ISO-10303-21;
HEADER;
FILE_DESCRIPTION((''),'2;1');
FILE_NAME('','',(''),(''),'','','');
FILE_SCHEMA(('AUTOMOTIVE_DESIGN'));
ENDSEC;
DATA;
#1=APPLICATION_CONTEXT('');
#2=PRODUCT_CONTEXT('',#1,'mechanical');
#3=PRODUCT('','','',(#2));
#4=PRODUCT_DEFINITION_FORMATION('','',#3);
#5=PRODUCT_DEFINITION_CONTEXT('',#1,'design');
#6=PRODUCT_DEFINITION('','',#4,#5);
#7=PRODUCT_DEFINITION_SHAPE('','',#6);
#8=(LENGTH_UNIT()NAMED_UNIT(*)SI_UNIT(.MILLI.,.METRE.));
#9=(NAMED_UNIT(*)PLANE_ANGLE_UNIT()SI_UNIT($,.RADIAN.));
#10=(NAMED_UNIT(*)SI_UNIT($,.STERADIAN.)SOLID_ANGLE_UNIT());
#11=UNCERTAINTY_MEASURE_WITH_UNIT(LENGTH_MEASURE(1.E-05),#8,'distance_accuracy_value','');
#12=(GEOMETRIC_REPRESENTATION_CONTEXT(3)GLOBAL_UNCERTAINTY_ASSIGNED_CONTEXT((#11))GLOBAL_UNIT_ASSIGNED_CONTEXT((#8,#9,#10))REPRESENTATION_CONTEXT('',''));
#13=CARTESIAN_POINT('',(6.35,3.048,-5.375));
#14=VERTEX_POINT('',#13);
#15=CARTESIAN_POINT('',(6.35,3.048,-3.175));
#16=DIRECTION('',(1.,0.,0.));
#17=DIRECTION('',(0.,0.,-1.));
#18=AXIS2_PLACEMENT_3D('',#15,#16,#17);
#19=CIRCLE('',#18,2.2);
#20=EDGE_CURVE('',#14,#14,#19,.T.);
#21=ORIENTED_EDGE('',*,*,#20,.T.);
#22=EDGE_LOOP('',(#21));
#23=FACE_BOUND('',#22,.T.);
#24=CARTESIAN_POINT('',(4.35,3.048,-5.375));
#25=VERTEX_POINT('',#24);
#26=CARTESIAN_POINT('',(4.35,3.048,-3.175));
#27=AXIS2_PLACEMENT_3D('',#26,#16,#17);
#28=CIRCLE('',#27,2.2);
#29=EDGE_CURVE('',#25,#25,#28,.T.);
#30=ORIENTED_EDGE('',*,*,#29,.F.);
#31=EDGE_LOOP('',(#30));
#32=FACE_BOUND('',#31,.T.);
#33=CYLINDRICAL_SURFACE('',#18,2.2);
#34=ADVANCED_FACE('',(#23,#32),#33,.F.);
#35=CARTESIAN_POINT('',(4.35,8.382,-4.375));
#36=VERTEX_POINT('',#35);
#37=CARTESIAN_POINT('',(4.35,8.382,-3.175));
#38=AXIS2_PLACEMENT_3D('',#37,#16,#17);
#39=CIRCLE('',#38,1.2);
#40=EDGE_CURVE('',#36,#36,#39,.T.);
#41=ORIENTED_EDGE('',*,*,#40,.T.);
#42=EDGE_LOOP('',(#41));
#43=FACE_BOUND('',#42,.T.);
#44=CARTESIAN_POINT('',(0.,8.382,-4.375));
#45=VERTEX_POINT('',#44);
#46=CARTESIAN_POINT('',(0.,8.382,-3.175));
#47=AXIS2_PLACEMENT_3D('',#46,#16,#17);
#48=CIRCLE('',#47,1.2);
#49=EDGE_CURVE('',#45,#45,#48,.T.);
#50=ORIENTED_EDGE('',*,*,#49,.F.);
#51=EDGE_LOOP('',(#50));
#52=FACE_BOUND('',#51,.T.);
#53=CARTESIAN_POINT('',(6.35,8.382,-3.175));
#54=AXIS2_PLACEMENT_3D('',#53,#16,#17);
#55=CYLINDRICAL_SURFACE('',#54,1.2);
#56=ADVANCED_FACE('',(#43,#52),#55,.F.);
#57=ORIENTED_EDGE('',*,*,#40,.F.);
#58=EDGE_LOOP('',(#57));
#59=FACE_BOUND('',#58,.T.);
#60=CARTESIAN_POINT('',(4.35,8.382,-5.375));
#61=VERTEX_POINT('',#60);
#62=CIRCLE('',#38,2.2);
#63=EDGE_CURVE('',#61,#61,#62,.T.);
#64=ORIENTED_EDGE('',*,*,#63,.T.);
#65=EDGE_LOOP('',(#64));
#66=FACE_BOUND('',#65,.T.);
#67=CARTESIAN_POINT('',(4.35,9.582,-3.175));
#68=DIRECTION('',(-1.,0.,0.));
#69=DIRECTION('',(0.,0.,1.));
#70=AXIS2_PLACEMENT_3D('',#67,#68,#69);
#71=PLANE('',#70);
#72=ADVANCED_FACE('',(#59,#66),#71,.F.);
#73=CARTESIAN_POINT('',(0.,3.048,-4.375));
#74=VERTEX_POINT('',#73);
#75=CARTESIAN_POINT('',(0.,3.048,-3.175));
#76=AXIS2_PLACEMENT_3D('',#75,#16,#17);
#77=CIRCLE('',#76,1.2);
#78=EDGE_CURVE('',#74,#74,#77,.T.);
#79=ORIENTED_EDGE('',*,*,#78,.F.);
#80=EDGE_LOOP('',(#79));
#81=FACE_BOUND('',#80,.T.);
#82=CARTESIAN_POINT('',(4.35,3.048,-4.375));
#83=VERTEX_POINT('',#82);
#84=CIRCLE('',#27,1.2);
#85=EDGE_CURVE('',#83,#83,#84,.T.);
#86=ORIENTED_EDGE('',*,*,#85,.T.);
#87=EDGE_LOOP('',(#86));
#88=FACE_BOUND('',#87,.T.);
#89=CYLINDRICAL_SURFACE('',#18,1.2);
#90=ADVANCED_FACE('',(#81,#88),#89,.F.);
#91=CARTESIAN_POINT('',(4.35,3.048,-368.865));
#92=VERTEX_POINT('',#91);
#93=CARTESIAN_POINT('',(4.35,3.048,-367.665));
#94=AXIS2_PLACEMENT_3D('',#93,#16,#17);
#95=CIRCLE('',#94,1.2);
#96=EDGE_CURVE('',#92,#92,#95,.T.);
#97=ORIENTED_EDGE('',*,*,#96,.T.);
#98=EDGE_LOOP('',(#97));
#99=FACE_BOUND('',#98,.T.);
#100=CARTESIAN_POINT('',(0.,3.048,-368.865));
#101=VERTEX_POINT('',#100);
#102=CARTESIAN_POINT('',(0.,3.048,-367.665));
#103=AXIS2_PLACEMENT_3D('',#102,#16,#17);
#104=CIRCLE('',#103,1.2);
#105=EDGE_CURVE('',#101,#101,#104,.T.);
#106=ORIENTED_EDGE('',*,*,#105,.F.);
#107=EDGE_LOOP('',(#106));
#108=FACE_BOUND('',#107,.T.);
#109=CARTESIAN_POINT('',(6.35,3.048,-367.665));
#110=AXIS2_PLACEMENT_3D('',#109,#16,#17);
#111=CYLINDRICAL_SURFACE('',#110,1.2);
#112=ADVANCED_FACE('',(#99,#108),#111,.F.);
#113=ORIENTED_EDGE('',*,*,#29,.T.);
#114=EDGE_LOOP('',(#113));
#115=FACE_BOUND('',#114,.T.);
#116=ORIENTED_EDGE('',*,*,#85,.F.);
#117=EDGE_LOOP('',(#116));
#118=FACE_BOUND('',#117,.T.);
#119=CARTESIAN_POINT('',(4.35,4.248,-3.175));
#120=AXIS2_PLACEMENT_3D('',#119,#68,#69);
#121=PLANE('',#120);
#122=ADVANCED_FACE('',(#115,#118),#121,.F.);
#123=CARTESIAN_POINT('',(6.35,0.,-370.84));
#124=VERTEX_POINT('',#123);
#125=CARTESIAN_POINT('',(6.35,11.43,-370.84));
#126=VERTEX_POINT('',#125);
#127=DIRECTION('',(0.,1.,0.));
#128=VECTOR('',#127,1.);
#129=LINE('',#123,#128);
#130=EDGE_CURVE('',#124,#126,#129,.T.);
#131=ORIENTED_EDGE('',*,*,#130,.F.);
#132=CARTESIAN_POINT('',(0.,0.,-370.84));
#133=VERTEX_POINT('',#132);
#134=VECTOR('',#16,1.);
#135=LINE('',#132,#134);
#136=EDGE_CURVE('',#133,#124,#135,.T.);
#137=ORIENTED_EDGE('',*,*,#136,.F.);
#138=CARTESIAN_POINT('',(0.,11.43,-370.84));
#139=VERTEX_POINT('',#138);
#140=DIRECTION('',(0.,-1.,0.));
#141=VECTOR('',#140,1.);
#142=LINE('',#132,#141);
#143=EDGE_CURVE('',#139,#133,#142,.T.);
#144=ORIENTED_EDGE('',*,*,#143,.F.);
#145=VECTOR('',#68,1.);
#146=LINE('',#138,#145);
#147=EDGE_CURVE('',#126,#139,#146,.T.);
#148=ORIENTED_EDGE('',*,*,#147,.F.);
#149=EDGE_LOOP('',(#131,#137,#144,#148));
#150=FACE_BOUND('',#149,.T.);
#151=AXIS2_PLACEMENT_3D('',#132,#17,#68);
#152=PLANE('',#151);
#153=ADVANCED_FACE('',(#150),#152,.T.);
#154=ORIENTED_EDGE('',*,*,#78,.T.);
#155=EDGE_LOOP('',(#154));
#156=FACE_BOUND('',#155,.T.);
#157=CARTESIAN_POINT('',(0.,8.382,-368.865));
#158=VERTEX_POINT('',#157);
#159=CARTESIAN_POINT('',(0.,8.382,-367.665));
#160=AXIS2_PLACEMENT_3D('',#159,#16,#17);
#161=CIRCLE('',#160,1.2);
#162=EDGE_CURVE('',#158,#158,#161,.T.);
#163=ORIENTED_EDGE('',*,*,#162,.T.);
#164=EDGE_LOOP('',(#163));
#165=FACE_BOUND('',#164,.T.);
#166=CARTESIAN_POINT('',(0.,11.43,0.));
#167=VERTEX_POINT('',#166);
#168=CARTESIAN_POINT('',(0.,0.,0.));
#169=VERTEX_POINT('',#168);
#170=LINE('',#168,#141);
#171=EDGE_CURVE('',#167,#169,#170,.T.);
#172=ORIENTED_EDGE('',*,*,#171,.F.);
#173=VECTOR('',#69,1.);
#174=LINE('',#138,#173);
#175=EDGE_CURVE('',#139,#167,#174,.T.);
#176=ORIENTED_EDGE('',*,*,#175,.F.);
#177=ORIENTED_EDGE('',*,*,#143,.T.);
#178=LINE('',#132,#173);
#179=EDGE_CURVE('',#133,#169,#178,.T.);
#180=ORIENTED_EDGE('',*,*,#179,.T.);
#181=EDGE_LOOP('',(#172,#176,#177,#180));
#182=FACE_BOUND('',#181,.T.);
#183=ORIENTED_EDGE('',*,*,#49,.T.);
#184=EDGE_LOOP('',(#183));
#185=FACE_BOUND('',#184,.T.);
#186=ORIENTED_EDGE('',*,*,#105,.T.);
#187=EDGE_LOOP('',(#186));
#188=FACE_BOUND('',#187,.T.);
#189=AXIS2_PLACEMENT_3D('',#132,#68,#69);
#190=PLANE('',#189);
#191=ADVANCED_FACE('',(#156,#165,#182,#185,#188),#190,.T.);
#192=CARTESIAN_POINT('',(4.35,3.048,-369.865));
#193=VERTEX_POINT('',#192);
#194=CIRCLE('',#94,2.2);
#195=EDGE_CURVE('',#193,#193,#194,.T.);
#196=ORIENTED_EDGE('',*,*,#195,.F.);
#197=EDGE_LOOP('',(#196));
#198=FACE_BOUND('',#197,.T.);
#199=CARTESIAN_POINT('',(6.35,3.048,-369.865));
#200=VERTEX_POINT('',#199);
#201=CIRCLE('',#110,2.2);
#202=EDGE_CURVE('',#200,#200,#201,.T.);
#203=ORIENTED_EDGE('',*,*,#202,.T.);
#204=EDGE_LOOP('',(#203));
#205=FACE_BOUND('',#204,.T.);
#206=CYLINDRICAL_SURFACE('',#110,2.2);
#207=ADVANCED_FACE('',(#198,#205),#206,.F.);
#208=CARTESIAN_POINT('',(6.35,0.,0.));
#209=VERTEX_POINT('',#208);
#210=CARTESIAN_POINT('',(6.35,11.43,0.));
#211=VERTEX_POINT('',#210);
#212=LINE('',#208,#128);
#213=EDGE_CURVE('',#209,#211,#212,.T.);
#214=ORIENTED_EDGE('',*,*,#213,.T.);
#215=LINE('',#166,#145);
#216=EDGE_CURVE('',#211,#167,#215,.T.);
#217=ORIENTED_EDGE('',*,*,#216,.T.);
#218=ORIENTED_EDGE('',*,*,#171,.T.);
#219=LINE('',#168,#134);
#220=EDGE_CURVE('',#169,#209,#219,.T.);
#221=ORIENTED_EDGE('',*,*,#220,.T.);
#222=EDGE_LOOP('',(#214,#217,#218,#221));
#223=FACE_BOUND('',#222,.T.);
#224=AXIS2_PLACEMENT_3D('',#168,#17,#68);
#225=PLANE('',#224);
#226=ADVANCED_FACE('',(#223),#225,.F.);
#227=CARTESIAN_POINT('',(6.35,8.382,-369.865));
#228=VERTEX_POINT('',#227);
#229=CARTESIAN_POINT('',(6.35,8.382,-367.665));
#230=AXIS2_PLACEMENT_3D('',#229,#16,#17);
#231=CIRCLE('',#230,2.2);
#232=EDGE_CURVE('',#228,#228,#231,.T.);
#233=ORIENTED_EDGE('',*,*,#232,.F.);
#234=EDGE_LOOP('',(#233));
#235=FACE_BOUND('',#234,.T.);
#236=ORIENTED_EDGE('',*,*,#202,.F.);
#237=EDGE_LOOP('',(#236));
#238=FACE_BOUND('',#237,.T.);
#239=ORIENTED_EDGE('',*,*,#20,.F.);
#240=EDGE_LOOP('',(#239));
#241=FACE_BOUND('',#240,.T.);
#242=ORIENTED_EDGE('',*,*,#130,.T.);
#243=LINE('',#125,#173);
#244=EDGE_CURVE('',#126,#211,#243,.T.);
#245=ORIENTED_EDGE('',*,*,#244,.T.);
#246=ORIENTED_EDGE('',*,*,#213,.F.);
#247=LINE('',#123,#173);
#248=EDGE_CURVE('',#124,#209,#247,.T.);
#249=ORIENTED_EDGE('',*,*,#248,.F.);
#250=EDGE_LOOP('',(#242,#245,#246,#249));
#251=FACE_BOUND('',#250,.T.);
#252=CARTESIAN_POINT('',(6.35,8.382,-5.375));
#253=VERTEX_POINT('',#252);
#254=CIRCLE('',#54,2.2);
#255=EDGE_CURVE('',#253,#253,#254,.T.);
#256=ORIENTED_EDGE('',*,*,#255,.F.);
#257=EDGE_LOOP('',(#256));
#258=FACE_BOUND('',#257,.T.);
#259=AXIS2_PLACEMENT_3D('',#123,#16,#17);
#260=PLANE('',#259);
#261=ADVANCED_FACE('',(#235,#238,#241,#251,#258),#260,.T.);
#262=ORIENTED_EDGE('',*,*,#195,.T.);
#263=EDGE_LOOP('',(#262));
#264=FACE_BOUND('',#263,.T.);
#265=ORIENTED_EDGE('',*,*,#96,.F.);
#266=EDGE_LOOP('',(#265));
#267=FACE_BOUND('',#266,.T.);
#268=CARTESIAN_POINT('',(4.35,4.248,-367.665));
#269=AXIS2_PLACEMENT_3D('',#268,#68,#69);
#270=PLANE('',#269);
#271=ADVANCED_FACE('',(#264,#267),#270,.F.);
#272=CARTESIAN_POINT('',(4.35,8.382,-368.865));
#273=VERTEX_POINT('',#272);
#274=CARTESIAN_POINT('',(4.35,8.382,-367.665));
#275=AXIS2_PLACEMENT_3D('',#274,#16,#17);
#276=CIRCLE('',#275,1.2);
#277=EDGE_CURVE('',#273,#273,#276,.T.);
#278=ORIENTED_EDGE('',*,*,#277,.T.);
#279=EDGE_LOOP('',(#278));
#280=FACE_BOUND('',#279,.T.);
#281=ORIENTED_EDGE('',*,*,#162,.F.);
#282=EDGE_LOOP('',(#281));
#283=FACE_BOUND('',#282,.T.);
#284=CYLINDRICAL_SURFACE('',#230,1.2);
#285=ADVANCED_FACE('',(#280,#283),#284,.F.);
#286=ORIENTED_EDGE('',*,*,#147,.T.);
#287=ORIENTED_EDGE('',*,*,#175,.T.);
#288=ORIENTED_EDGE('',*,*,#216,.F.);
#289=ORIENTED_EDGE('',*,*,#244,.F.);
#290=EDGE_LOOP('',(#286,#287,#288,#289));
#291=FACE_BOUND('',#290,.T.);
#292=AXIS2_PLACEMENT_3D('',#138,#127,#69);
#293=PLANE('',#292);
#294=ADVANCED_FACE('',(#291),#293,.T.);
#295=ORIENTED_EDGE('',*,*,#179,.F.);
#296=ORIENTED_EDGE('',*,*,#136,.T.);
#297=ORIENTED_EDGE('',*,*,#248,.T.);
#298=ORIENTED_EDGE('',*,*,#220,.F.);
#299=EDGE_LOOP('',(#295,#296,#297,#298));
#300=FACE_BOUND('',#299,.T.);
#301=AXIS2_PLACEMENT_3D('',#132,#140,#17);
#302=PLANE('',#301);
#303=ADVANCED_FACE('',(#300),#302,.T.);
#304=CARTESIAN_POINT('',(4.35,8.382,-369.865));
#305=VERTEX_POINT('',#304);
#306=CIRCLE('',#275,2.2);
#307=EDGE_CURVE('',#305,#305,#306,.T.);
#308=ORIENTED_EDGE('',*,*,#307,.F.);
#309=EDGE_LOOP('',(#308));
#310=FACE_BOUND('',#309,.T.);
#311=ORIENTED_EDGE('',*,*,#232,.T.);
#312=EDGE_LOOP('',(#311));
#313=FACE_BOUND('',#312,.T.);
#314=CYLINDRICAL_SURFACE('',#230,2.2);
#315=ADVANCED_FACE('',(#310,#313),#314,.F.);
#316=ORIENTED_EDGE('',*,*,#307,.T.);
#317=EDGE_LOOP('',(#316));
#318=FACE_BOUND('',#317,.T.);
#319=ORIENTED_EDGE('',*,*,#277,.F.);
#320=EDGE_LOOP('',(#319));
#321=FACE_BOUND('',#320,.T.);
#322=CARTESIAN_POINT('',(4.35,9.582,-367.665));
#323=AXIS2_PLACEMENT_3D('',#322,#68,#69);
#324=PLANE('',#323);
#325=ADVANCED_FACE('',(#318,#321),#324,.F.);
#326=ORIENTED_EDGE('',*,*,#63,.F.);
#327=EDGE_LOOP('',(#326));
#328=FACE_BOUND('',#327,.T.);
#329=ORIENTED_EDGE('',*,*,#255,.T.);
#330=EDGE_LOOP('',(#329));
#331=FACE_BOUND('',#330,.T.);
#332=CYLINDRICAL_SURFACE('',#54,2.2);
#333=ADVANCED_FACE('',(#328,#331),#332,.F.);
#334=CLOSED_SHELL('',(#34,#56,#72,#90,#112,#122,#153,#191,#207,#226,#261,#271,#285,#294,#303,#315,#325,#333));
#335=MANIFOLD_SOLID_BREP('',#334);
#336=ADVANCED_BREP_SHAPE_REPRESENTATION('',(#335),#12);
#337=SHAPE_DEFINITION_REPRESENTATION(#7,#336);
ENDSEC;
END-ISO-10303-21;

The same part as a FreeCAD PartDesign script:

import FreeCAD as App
import Part
import Sketcher
Q = App.Units.Quantity


def add_polygon(sketch, points):
    """Adds a closed chain of lines whose ends are joined by coincident constraints."""
    first, n = sketch.GeometryCount, len(points)
    for a, b in zip(points, points[1:] + points[:1]):
        sketch.addGeometry(Part.LineSegment(App.Vector(*a, 0), App.Vector(*b, 0)), False)
    for i in range(n):
        sketch.addConstraint(Sketcher.Constraint("Coincident", first + i, 2, first + (i + 1) % n, 1))

doc = App.newDocument("Part")
body = doc.addObject("PartDesign::Body", "Body")

sketch1 = body.newObject("Sketcher::SketchObject", "Sketch")
sketch1.AttachmentSupport = (doc.getObject("XY_Plane"), [""])
sketch1.MapMode = "FlatFace"
add_polygon(sketch1, [(0, 11.43), (0, 0), (6.35, 0), (6.35, 11.43)])
sketch1.addConstraint(Sketcher.Constraint("Vertical", 0))
sketch1.addConstraint(Sketcher.Constraint("Horizontal", 1))
sketch1.addConstraint(Sketcher.Constraint("Vertical", 2))
sketch1.addConstraint(Sketcher.Constraint("Horizontal", 3))
sketch1.addConstraint(Sketcher.Constraint("Coincident", 0, 2, -1, 1))
sketch1.addConstraint(Sketcher.Constraint("DistanceX", 1, 1, 1, 2, Q("0.25 in")))
sketch1.addConstraint(Sketcher.Constraint("DistanceY", 0, 2, 0, 1, Q("0.45 in")))
pad1 = body.newObject("PartDesign::Pad", "Pad")
pad1.Profile = sketch1
pad1.Length = Q("14.6 in")
pad1.Reversed = True

sketch2 = body.newObject("Sketcher::SketchObject", "Sketch001")
sketch2.AttachmentSupport = (doc.getObject("YZ_Plane"), [""])
sketch2.MapMode = "FlatFace"
sketch2.AttachmentOffset = App.Placement(App.Vector(0, 0, 0.25 * 25.4), App.Rotation())
sketch2.addGeometry(Part.Circle(App.Vector(8.382, -3.175, 0), App.Vector(0, 0, 1), 1.2), False)
sketch2.addGeometry(Part.Circle(App.Vector(3.048, -3.175, 0), App.Vector(0, 0, 1), 1.2), False)
sketch2.addConstraint(Sketcher.Constraint("Equal", 0, 1))
sketch2.addConstraint(Sketcher.Constraint("Horizontal", 0, 3, 1, 3))
sketch2.addConstraint(Sketcher.Constraint("Diameter", 0, Q("2.4 mm")))
sketch2.addConstraint(Sketcher.Constraint("DistanceX", -1, 1, 0, 3, Q("0.33 in")))
sketch2.addConstraint(Sketcher.Constraint("DistanceX", -1, 1, 1, 3, Q("0.12 in")))
sketch2.addConstraint(Sketcher.Constraint("DistanceY", 0, 3, -1, 1, Q("0.125 in")))
doc.recompute()
hole = body.newObject("PartDesign::Hole", "Hole")
hole.Profile = sketch2
hole.ThreadType = "None"
hole.Diameter = 2.4
hole.DepthType = "ThroughAll"
hole.HoleCutType = "Counterbore"
hole.HoleCutDiameter = 4.4
hole.HoleCutDepth = 2
doc.recompute()

datumplane = body.newObject("PartDesign::Plane", "DatumPlane")
datumplane.AttachmentSupport = (doc.getObject("XY_Plane"), [""])
datumplane.MapMode = "FlatFace"
datumplane.AttachmentOffset = App.Placement(App.Vector(0, 0, -7.3 * 25.4), App.Rotation())
mirrored = body.newObject("PartDesign::Mirrored", "Mirrored")
mirrored.Originals = [hole]
mirrored.MirrorPlane = (datumplane, [""])
body.Tip = mirrored

doc.recompute()
